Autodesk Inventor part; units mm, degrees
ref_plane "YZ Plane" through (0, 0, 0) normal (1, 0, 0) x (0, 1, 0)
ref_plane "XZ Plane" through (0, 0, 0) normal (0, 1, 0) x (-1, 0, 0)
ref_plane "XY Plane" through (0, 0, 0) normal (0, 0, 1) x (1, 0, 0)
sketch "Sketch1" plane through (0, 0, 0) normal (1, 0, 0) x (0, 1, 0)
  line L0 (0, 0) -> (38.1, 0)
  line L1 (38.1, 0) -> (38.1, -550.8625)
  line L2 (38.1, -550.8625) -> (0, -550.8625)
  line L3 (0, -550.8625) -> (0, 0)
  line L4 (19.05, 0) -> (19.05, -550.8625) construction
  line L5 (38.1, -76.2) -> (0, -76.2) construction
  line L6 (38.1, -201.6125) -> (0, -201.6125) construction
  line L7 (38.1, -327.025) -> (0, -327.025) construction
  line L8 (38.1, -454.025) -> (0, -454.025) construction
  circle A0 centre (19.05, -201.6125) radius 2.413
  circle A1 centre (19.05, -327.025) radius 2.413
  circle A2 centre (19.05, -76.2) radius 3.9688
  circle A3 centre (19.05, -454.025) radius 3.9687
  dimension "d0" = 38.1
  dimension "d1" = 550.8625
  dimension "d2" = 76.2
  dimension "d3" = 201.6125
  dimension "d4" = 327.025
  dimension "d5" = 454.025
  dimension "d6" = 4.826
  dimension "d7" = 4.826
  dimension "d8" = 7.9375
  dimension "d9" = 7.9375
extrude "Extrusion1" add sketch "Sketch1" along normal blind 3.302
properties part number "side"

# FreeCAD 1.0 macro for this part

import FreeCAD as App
import Part
import Sketcher
from FreeCAD import Vector
Q = App.Units.Quantity

doc = App.newDocument("Part")
body = doc.addObject("PartDesign::Body", "Body")

sketch1 = body.newObject("Sketcher::SketchObject", "Sketch")
sketch1.AttachmentSupport = (doc.getObject("YZ_Plane"), [""])
sketch1.MapMode = "FlatFace"
sketch1.addGeometry([
    Part.LineSegment(Vector(38.1, 0, 0), Vector(0, 0, 0)),
    Part.LineSegment(Vector(0, 0, 0), Vector(0, -550.8625, 0)),
    Part.LineSegment(Vector(0, -550.8625, 0), Vector(38.1, -550.8625, 0)),
    Part.LineSegment(Vector(38.1, -550.8625, 0), Vector(38.1, 0, 0)),
    Part.Circle(Vector(19.05, -454.025, 0), Vector(0, 0, 1), 3.9687),
    Part.Circle(Vector(19.05, -327.025, 0), Vector(0, 0, 1), 2.413),
    Part.Circle(Vector(19.05, -201.6125, 0), Vector(0, 0, 1), 2.413),
    Part.Circle(Vector(19.05, -76.2, 0), Vector(0, 0, 1), 3.9688),
], False)
sketch1.addConstraint([
    Sketcher.Constraint("Coincident", 0, 2, 1, 1),
    Sketcher.Constraint("Coincident", 1, 2, 2, 1),
    Sketcher.Constraint("Coincident", 2, 2, 3, 1),
    Sketcher.Constraint("Coincident", 3, 2, 0, 1),
    Sketcher.Constraint("Horizontal", 0),
    Sketcher.Constraint("Vertical", 1),
    Sketcher.Constraint("Horizontal", 2),
    Sketcher.Constraint("Vertical", 3),
    Sketcher.Constraint("Coincident", 0, 2, -1, 1),
    Sketcher.Constraint("Equal", 5, 6),
    Sketcher.Constraint("Equal", 4, 7),
    Sketcher.Constraint("Vertical", 4, 3, 5, 3),
    Sketcher.Constraint("Vertical", 5, 3, 6, 3),
    Sketcher.Constraint("Vertical", 6, 3, 7, 3),
    Sketcher.Constraint("Diameter", 5, Q("0.19 in")),
    Sketcher.Constraint("Diameter", 4, Q("0.3125 in")),
    Sketcher.Constraint("DistanceX", 0, 2, 0, 1, Q("1.5 in")),
    Sketcher.Constraint("DistanceY", 7, 3, -1, 1, Q("3 in")),
    Sketcher.Constraint("DistanceY", 1, 2, 1, 1, Q("21.6875 in")),
    Sketcher.Constraint("DistanceY", 4, 3, -1, 1, Q("17.875 in")),
    Sketcher.Constraint("DistanceY", 5, 3, -1, 1, Q("12.875 in")),
    Sketcher.Constraint("DistanceY", 6, 3, -1, 1, Q("7.9375 in")),
    Sketcher.Constraint("DistanceX", -1, 1, 4, 3, Q("0.75 in")),
])
pad1 = body.newObject("PartDesign::Pad", "Pad")
pad1.Profile = sketch1
pad1.Length = Q("0.13 in")

doc.recompute()
